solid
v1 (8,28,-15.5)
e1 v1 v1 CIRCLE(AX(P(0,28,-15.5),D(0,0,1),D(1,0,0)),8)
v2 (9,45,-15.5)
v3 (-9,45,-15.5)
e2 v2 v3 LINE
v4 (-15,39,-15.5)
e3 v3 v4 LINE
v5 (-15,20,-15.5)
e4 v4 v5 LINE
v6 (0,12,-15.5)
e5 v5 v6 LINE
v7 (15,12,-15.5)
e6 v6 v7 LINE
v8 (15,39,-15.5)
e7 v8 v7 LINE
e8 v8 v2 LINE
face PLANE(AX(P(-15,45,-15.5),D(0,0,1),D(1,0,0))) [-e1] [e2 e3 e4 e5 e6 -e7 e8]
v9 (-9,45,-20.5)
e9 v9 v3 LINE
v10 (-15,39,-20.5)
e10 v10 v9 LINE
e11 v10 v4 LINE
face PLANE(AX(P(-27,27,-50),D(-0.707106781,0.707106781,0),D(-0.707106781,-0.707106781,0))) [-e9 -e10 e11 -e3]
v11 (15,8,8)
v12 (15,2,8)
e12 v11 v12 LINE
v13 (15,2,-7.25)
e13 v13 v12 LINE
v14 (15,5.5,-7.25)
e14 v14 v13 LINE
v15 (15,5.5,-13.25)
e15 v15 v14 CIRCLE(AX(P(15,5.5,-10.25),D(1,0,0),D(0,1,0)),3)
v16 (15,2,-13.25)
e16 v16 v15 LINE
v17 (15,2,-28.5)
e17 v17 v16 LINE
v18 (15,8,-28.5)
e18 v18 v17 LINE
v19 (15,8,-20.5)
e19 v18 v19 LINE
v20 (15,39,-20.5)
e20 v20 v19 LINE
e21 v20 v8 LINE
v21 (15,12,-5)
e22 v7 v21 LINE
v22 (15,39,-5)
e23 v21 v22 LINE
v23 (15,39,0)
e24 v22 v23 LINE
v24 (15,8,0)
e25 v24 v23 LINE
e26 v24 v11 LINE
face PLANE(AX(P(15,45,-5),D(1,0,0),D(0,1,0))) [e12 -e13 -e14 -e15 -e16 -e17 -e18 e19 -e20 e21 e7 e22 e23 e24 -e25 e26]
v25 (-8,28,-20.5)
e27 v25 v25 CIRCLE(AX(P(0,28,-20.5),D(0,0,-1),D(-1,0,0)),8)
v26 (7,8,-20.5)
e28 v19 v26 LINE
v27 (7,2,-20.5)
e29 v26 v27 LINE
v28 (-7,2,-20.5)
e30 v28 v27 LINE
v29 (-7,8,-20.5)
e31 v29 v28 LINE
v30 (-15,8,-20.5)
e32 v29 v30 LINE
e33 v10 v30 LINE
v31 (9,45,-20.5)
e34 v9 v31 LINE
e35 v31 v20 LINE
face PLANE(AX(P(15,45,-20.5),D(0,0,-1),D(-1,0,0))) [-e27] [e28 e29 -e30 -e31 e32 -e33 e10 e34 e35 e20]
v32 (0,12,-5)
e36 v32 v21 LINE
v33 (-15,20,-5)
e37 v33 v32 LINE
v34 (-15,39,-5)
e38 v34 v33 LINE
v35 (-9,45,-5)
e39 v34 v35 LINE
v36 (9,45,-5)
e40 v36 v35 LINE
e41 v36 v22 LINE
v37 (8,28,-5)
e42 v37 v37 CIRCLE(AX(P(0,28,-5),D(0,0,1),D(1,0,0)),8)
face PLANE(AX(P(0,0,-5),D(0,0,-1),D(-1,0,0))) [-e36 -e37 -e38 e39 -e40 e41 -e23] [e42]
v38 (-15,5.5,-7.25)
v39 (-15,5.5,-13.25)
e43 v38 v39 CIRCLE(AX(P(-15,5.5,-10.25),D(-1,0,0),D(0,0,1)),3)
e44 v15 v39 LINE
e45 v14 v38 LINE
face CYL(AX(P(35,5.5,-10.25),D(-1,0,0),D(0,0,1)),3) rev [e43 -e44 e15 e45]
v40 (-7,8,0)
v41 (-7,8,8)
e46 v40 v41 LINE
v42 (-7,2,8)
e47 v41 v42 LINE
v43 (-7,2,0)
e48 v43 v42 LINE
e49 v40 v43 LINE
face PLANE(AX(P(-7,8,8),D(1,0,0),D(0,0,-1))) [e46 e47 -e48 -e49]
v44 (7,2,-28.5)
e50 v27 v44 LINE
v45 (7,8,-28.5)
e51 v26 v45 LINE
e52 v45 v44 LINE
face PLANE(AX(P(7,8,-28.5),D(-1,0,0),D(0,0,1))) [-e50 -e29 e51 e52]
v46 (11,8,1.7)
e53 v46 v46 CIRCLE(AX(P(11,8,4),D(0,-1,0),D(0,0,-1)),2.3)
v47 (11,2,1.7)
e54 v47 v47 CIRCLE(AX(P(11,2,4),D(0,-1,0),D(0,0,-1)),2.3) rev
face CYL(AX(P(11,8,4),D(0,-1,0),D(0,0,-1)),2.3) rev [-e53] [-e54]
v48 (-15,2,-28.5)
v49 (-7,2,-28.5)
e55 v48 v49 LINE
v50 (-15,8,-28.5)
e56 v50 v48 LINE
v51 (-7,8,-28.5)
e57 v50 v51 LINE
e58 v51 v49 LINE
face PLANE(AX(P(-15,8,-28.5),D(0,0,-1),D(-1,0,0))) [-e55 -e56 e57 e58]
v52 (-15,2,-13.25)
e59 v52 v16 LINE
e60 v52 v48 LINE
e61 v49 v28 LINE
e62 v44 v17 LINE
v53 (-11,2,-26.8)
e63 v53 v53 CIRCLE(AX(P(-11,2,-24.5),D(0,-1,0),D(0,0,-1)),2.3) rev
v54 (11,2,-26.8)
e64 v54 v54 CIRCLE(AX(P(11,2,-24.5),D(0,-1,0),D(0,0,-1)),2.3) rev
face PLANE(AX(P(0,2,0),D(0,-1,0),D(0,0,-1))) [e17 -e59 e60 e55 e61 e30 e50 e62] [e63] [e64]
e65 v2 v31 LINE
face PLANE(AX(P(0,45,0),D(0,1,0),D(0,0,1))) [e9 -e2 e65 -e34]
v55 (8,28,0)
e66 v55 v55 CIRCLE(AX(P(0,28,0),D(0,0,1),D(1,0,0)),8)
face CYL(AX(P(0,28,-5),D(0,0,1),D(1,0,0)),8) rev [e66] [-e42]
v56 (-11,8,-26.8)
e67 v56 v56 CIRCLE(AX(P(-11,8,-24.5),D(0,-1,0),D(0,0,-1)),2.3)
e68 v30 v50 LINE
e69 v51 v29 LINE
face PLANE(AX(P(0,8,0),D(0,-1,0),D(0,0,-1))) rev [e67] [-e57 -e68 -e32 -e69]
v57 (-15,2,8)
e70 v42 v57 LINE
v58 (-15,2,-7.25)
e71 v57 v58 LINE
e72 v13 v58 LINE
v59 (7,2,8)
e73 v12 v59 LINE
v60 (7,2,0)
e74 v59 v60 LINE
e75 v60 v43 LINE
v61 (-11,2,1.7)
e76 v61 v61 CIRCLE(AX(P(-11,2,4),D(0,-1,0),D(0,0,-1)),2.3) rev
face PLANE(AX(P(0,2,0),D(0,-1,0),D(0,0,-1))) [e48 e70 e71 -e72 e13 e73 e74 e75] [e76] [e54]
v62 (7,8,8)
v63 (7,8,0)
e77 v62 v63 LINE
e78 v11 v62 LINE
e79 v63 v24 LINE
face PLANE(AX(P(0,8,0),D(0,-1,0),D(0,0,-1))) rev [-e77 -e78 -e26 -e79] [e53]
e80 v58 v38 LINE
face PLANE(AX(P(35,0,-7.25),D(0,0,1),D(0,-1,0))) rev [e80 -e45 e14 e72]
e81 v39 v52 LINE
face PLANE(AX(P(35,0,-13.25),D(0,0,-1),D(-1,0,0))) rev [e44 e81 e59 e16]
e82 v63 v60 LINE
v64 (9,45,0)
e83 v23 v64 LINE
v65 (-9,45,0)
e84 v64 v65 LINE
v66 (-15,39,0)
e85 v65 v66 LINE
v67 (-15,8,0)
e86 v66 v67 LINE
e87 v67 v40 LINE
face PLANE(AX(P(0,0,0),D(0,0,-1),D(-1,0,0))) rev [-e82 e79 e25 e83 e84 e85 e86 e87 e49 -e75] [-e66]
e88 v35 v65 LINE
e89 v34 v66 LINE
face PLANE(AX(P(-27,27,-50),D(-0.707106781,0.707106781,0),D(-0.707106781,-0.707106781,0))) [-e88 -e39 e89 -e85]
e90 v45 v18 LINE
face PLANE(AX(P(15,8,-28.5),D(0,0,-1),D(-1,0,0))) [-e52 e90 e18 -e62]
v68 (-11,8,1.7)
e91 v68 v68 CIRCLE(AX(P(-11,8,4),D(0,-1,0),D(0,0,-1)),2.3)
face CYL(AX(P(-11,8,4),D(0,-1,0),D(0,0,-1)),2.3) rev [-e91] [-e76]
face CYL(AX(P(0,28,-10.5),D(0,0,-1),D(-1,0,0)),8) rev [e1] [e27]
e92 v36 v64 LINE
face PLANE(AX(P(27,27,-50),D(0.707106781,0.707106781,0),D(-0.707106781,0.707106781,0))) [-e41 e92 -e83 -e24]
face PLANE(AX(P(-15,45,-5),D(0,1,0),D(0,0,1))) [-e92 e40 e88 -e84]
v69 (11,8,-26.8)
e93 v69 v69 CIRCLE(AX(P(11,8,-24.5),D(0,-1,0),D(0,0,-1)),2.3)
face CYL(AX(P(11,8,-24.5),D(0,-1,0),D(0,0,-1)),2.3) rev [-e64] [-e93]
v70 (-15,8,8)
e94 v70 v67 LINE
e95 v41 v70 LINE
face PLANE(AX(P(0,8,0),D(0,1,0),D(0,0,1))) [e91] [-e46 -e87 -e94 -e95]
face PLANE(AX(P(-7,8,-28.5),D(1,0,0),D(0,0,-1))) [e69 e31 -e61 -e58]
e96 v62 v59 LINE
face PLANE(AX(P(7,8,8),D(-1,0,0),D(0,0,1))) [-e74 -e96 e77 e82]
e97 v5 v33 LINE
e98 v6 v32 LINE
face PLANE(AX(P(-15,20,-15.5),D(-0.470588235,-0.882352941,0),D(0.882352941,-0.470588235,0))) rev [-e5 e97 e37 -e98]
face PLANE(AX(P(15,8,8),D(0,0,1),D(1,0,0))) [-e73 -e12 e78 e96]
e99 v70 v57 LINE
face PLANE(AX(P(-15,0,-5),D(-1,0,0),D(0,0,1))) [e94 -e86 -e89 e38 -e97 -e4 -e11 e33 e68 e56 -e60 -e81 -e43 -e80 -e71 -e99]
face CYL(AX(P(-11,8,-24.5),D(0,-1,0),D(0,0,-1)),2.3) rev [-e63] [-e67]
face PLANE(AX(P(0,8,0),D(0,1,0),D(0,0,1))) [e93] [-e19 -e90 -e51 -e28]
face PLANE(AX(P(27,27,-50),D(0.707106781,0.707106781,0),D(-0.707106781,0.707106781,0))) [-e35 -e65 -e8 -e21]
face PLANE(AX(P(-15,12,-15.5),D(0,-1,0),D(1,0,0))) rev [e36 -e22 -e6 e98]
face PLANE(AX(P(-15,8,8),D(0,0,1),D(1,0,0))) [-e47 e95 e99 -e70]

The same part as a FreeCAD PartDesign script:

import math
import FreeCAD as App
import Part
import Sketcher

V = App.Vector
Q = App.Units.Quantity


def add_polygon(sketch, points):
    """Adds a closed chain of lines whose ends are joined by coincident constraints."""
    first, n = sketch.GeometryCount, len(points)
    for a, b in zip(points, points[1:] + points[:1]):
        sketch.addGeometry(Part.LineSegment(App.Vector(*a, 0), App.Vector(*b, 0)), False)
    for i in range(n):
        sketch.addConstraint(Sketcher.Constraint("Coincident", first + i, 2, first + (i + 1) % n, 1))

doc = App.newDocument("Part")
body = doc.addObject("PartDesign::Body", "Body")

# Sketch on XY plane
sketch1 = body.newObject("Sketcher::SketchObject", "Sketch")
sketch1.AttachmentSupport = (doc.getObject("XY_Plane"), [""])
sketch1.MapMode = "FlatFace"
add_polygon(sketch1, [(15, 0), (15, 45), (-15, 45), (-15, 0)])  # lines 0-3
sketch1.addGeometry(Part.Circle(V(0, 28, 0), V(0, 0, 1), 8), False)  # 4
sketch1.addConstraint(Sketcher.Constraint("Vertical", 0))
sketch1.addConstraint(Sketcher.Constraint("Horizontal", 1))
sketch1.addConstraint(Sketcher.Constraint("Vertical", 2))
sketch1.addConstraint(Sketcher.Constraint("Horizontal", 3))
sketch1.addConstraint(Sketcher.Constraint("Symmetric", 2, 2, 3, 2, -1, 1))
sketch1.addConstraint(Sketcher.Constraint("PointOnObject", 4, 3, -2))
sketch1.addConstraint(Sketcher.Constraint("Diameter", 4, Q("16 mm")))
sketch1.addConstraint(Sketcher.Constraint("DistanceX", 1, 2, 1, 1, Q("30 mm")))
sketch1.addConstraint(Sketcher.Constraint("DistanceY", 0, 1, 0, 2, Q("45 mm")))
sketch1.addConstraint(Sketcher.Constraint("DistanceY", -1, 1, 4, 3, Q("28 mm")))
pad1 = body.newObject("PartDesign::Pad", "Pad")
pad1.Profile = sketch1
pad1.Length = 5
pad1.Reversed = True

# Sketch on XY plane
sketch2 = body.newObject("Sketcher::SketchObject", "Sketch001")
sketch2.AttachmentSupport = (doc.getObject("XY_Plane"), [""])
sketch2.MapMode = "FlatFace"
sketch2.AttachmentOffset = App.Placement(V(0, 0, -5), App.Rotation())
add_polygon(sketch2, [(15, 12), (15, 0), (-15, 0), (-15, 12)])  # lines 0-3
sketch2.addConstraint(Sketcher.Constraint("Vertical", 0))
sketch2.addConstraint(Sketcher.Constraint("Horizontal", 1))
sketch2.addConstraint(Sketcher.Constraint("Vertical", 2))
sketch2.addConstraint(Sketcher.Constraint("Horizontal", 3))
sketch2.addConstraint(Sketcher.Constraint("Symmetric", 0, 2, 1, 2, -1, 1))
sketch2.addConstraint(Sketcher.Constraint("DistanceX", 1, 2, 1, 1, Q("30 mm")))
sketch2.addConstraint(Sketcher.Constraint("DistanceY", 0, 2, 0, 1, Q("12 mm")))
pad2 = body.newObject("PartDesign::Pad", "Pad001")
pad2.Profile = sketch2
pad2.Length = 10.5
pad2.Reversed = True

# Sketch on XZ plane
sketch3 = body.newObject("Sketcher::SketchObject", "Sketch002")
sketch3.AttachmentSupport = (doc.getObject("XZ_Plane"), [""])
sketch3.MapMode = "FlatFace"
add_polygon(sketch3, [(-15, -16), (-15, -20), (15, -20), (15, -16)])  # lines 0-3
sketch3.addConstraint(Sketcher.Constraint("Vertical", 0))
sketch3.addConstraint(Sketcher.Constraint("Horizontal", 1))
sketch3.addConstraint(Sketcher.Constraint("Vertical", 2))
sketch3.addConstraint(Sketcher.Constraint("Horizontal", 3))
sketch3.addConstraint(Sketcher.Constraint("DistanceX", 1, 1, 1, 2, Q("30 mm")))
sketch3.addConstraint(Sketcher.Constraint("DistanceY", 0, 2, 0, 1, Q("5 mm")))
sketch3.addConstraint(Sketcher.Constraint("DistanceX", 0, 2, -1, 1, Q("15 mm")))
sketch3.addConstraint(Sketcher.Constraint("DistanceY", 0, 2, -1, 1, Q("20.5 mm")))
pad3 = body.newObject("PartDesign::Pad", "Pad002")
pad3.Profile = sketch3
pad3.Length = 45
pad3.Reversed = True

# Sketch on XY plane
sketch4 = body.newObject("Sketcher::SketchObject", "Sketch003")
sketch4.AttachmentSupport = (doc.getObject("XY_Plane"), [""])
sketch4.MapMode = "FlatFace"
sketch4.AttachmentOffset = App.Placement(V(0, 0, -10.5), App.Rotation())
sketch4.addGeometry(Part.Circle(V(0, 28, 0), V(0, 0, 1), 8), False)
sketch4.addConstraint(Sketcher.Constraint("PointOnObject", 0, 3, -2))
sketch4.addConstraint(Sketcher.Constraint("Diameter", 0, Q("16 mm")))
sketch4.addConstraint(Sketcher.Constraint("DistanceY", -1, 1, 0, 3, Q("28 mm")))
pocket1 = body.newObject("PartDesign::Pocket", "Pocket")
pocket1.Profile = sketch4
pocket1.Length = 10

# Sketch on XZ plane
sketch5 = body.newObject("Sketcher::SketchObject", "Sketch004")
sketch5.AttachmentSupport = (doc.getObject("XZ_Plane"), [""])
sketch5.MapMode = "FlatFace"
add_polygon(sketch5, [(-15, 8), (-15, 0), (-7, 0), (-7, 8)])  # lines 0-3
sketch5.addGeometry(Part.Circle(V(-11, 4, 0), V(0, 0, 1), 2.3), False)  # 4
add_polygon(sketch5, [(7, 8), (7, 0), (15, 0), (15, 8)])  # lines 5-8
sketch5.addGeometry(Part.Circle(V(11, 4, 0), V(0, 0, 1), 2.3), False)  # 9
add_polygon(sketch5, [(-15, -20.5), (-15, -28.5), (-7, -28.5), (-7, -20.5)])  # lines 10-13
sketch5.addGeometry(Part.Circle(V(-11, -24.5, 0), V(0, 0, 1), 2.3), False)  # 14
add_polygon(sketch5, [(7, -20.5), (7, -28.5), (15, -28.5), (15, -20.5)])  # lines 15-18
sketch5.addGeometry(Part.Circle(V(11, -24.5, 0), V(0, 0, 1), 2.3), False)  # 19
sketch5.addConstraint(Sketcher.Constraint("Vertical", 0))
sketch5.addConstraint(Sketcher.Constraint("Horizontal", 1))
sketch5.addConstraint(Sketcher.Constraint("Vertical", 2))
sketch5.addConstraint(Sketcher.Constraint("Horizontal", 3))
sketch5.addConstraint(Sketcher.Constraint("Vertical", 5))
sketch5.addConstraint(Sketcher.Constraint("Horizontal", 6))
sketch5.addConstraint(Sketcher.Constraint("Vertical", 7))
sketch5.addConstraint(Sketcher.Constraint("Horizontal", 8))
sketch5.addConstraint(Sketcher.Constraint("Vertical", 10))
sketch5.addConstraint(Sketcher.Constraint("Horizontal", 11))
sketch5.addConstraint(Sketcher.Constraint("Vertical", 12))
sketch5.addConstraint(Sketcher.Constraint("Horizontal", 13))
sketch5.addConstraint(Sketcher.Constraint("Vertical", 15))
sketch5.addConstraint(Sketcher.Constraint("Horizontal", 16))
sketch5.addConstraint(Sketcher.Constraint("Vertical", 17))
sketch5.addConstraint(Sketcher.Constraint("Horizontal", 18))
sketch5.addConstraint(Sketcher.Constraint("Equal", 4, 9))
sketch5.addConstraint(Sketcher.Constraint("Equal", 9, 14))
sketch5.addConstraint(Sketcher.Constraint("Equal", 14, 19))
sketch5.addConstraint(Sketcher.Constraint("Symmetric", 1, 2, 5, 2, -1, 1))
sketch5.addConstraint(Sketcher.Constraint("Symmetric", 4, 3, 9, 3, -2))
sketch5.addConstraint(Sketcher.Constraint("Symmetric", 14, 3, 19, 3, -2))
sketch5.addConstraint(Sketcher.Constraint("Symmetric", 0, 2, 6, 2, -2))
sketch5.addConstraint(Sketcher.Constraint("Symmetric", 11, 2, 15, 2, -2))
sketch5.addConstraint(Sketcher.Constraint("Symmetric", 13, 2, 17, 2, -2))
sketch5.addConstraint(Sketcher.Constraint("Horizontal", 3, 2, 7, 2))
sketch5.addConstraint(Sketcher.Constraint("Vertical", 4, 3, 14, 3))
sketch5.addConstraint(Sketcher.Constraint("Vertical", 3, 2, 10, 2))
sketch5.addConstraint(Sketcher.Constraint("Vertical", 2, 2, 11, 2))
sketch5.addConstraint(Sketcher.Constraint("Equal", 18, 0))
sketch5.addConstraint(Sketcher.Constraint("Equal", 7, 10))
sketch5.addConstraint(Sketcher.Constraint("Diameter", 4, Q("4.6 mm")))
sketch5.addConstraint(Sketcher.Constraint("DistanceX", 1, 1, 1, 2, Q("8 mm")))
sketch5.addConstraint(Sketcher.Constraint("DistanceX", 4, 3, -1, 1, Q("11 mm")))
sketch5.addConstraint(Sketcher.Constraint("DistanceY", -1, 1, 4, 3, Q("4 mm")))
sketch5.addConstraint(Sketcher.Constraint("DistanceX", 0, 2, -1, 1, Q("15 mm")))
sketch5.addConstraint(Sketcher.Constraint("DistanceY", 10, 2, 14, 3, Q("4 mm")))
sketch5.addConstraint(Sketcher.Constraint("DistanceY", 14, 3, -1, 1, Q("24.5 mm")))
pad4 = body.newObject("PartDesign::Pad", "Pad003")
pad4.Profile = sketch5
pad4.Length = 8
pad4.Reversed = True

# Sketch on XZ plane
sketch6 = body.newObject("Sketcher::SketchObject", "Sketch005")
sketch6.AttachmentSupport = (doc.getObject("XZ_Plane"), [""])
sketch6.MapMode = "FlatFace"
add_polygon(sketch6, [(-15, 8), (-15, -28), (-7, -28), (-7, -20), (7, -20), (7, -28), (15, -28), (15, 8), (7, 8), (7, 0), (-7, 0), (-7, 8)])  # lines 0-11
sketch6.addConstraint(Sketcher.Constraint("Vertical", 0))
sketch6.addConstraint(Sketcher.Constraint("Horizontal", 1))
sketch6.addConstraint(Sketcher.Constraint("Vertical", 2))
sketch6.addConstraint(Sketcher.Constraint("Horizontal", 3))
sketch6.addConstraint(Sketcher.Constraint("Vertical", 4))
sketch6.addConstraint(Sketcher.Constraint("Horizontal", 5))
sketch6.addConstraint(Sketcher.Constraint("Vertical", 6))
sketch6.addConstraint(Sketcher.Constraint("Horizontal", 7))
sketch6.addConstraint(Sketcher.Constraint("Vertical", 8))
sketch6.addConstraint(Sketcher.Constraint("Horizontal", 9))
sketch6.addConstraint(Sketcher.Constraint("Vertical", 10))
sketch6.addConstraint(Sketcher.Constraint("Horizontal", 11))
sketch6.addConstraint(Sketcher.Constraint("Symmetric", 8, 2, 9, 2, -1, 1))
sketch6.addConstraint(Sketcher.Constraint("Symmetric", 1, 2, 4, 2, -2))
sketch6.addConstraint(Sketcher.Constraint("Symmetric", 6, 2, 11, 2, -2))
sketch6.addConstraint(Sketcher.Constraint("Vertical", 4, 2, 7, 2))
sketch6.addConstraint(Sketcher.Constraint("Equal", 11, 2))
sketch6.addConstraint(Sketcher.Constraint("Equal", 4, 8))
sketch6.addConstraint(Sketcher.Constraint("DistanceX", 1, 1, 1, 2, Q("8 mm")))
sketch6.addConstraint(Sketcher.Constraint("DistanceX", 3, 1, 3, 2, Q("14 mm")))
sketch6.addConstraint(Sketcher.Constraint("DistanceY", 0, 2, 0, 1, Q("36.5 mm")))
pocket2 = body.newObject("PartDesign::Pocket", "Pocket001")
pocket2.Profile = sketch6
pocket2.Length = 2

# Sketch on YZ plane
sketch7 = body.newObject("Sketcher::SketchObject", "Sketch006")
sketch7.AttachmentSupport = (doc.getObject("YZ_Plane"), [""])
sketch7.MapMode = "FlatFace"
sketch7.AttachmentOffset = App.Placement(V(0, 0, -15), App.Rotation())
sketch7.addGeometry(Part.LineSegment(V(2, -13.2, 0), V(2, -7.2, 0)), False)
sketch7.addGeometry(Part.LineSegment(V(2, -7.2, 0), V(5.5, -7.2, 0)), False)
sketch7.addGeometry(Part.ArcOfCircle(Part.Circle(V(5.5, -10.2, 0), V(0, 0, 1), 3), math.radians(-90), math.radians(90)), False)
sketch7.addGeometry(Part.LineSegment(V(5.5, -13.2, 0), V(2, -13.2, 0)), False)
sketch7.addConstraint(Sketcher.Constraint("Coincident", 0, 2, 1, 1))
sketch7.addConstraint(Sketcher.Constraint("Tangent", 1, 2, 2, 2))
sketch7.addConstraint(Sketcher.Constraint("Tangent", 2, 1, 3, 1))
sketch7.addConstraint(Sketcher.Constraint("Coincident", 3, 2, 0, 1))
sketch7.addConstraint(Sketcher.Constraint("Vertical", 0))
sketch7.addConstraint(Sketcher.Constraint("Horizontal", 1))
sketch7.addConstraint(Sketcher.Constraint("Horizontal", 3))
sketch7.addConstraint(Sketcher.Constraint("Radius", 2, Q("3 mm")))
sketch7.addConstraint(Sketcher.Constraint("DistanceX", 1, 1, 1, 2, Q("3.5 mm")))
sketch7.addConstraint(Sketcher.Constraint("DistanceX", -1, 1, 0, 2, Q("2 mm")))
sketch7.addConstraint(Sketcher.Constraint("DistanceY", 2, 3, -1, 1, Q("10.25 mm")))
pocket3 = body.newObject("PartDesign::Pocket", "Pocket002")
pocket3.Profile = sketch7
pocket3.Length = 50
pocket3.Reversed = True

# Sketch on XY plane
sketch8 = body.newObject("Sketcher::SketchObject", "Sketch007")
sketch8.AttachmentSupport = (doc.getObject("XY_Plane"), [""])
sketch8.MapMode = "FlatFace"
add_polygon(sketch8, [(-9, 45), (-15, 45), (-15, 39)])  # lines 0-2
add_polygon(sketch8, [(15, 45), (9, 45), (15, 39)])  # lines 3-5
sketch8.addConstraint(Sketcher.Constraint("Horizontal", 0))
sketch8.addConstraint(Sketcher.Constraint("Vertical", 1))
sketch8.addConstraint(Sketcher.Constraint("Horizontal", 3))
sketch8.addConstraint(Sketcher.Constraint("Vertical", 5))
sketch8.addConstraint(Sketcher.Constraint("Symmetric", 2, 2, 3, 2, -2))
sketch8.addConstraint(Sketcher.Constraint("Symmetric", 1, 2, 4, 2, -2))
sketch8.addConstraint(Sketcher.Constraint("Perpendicular", 2, 4))
sketch8.addConstraint(Sketcher.Constraint("DistanceX", 0, 2, 0, 1, Q("6 mm")))
sketch8.addConstraint(Sketcher.Constraint("DistanceX", 0, 2, -1, 1, Q("15 mm")))
sketch8.addConstraint(Sketcher.Constraint("DistanceY", -1, 1, 0, 2, Q("45 mm")))
pocket4 = body.newObject("PartDesign::Pocket", "Pocket003")
pocket4.Profile = sketch8
pocket4.Length = 50

# Sketch on XY plane
sketch9 = body.newObject("Sketcher::SketchObject", "Sketch008")
sketch9.AttachmentSupport = (doc.getObject("XY_Plane"), [""])
sketch9.MapMode = "FlatFace"
sketch9.AttachmentOffset = App.Placement(V(0, 0, -5), App.Rotation())
add_polygon(sketch9, [(0, 12), (-15, 12), (-15, 20)])  # lines 0-2
sketch9.addConstraint(Sketcher.Constraint("Horizontal", 0))
sketch9.addConstraint(Sketcher.Constraint("Vertical", 1))
sketch9.addConstraint(Sketcher.Constraint("PointOnObject", 2, 2, -2))
sketch9.addConstraint(Sketcher.Constraint("DistanceX", 0, 2, 0, 1, Q("15 mm")))
sketch9.addConstraint(Sketcher.Constraint("DistanceY", 1, 1, 1, 2, Q("8 mm")))
sketch9.addConstraint(Sketcher.Constraint("DistanceY", -1, 1, 0, 2, Q("12 mm")))
pad5 = body.newObject("PartDesign::Pad", "Pad004")
pad5.Profile = sketch9
pad5.Length = 10.5
pad5.Reversed = True

doc.recompute()
